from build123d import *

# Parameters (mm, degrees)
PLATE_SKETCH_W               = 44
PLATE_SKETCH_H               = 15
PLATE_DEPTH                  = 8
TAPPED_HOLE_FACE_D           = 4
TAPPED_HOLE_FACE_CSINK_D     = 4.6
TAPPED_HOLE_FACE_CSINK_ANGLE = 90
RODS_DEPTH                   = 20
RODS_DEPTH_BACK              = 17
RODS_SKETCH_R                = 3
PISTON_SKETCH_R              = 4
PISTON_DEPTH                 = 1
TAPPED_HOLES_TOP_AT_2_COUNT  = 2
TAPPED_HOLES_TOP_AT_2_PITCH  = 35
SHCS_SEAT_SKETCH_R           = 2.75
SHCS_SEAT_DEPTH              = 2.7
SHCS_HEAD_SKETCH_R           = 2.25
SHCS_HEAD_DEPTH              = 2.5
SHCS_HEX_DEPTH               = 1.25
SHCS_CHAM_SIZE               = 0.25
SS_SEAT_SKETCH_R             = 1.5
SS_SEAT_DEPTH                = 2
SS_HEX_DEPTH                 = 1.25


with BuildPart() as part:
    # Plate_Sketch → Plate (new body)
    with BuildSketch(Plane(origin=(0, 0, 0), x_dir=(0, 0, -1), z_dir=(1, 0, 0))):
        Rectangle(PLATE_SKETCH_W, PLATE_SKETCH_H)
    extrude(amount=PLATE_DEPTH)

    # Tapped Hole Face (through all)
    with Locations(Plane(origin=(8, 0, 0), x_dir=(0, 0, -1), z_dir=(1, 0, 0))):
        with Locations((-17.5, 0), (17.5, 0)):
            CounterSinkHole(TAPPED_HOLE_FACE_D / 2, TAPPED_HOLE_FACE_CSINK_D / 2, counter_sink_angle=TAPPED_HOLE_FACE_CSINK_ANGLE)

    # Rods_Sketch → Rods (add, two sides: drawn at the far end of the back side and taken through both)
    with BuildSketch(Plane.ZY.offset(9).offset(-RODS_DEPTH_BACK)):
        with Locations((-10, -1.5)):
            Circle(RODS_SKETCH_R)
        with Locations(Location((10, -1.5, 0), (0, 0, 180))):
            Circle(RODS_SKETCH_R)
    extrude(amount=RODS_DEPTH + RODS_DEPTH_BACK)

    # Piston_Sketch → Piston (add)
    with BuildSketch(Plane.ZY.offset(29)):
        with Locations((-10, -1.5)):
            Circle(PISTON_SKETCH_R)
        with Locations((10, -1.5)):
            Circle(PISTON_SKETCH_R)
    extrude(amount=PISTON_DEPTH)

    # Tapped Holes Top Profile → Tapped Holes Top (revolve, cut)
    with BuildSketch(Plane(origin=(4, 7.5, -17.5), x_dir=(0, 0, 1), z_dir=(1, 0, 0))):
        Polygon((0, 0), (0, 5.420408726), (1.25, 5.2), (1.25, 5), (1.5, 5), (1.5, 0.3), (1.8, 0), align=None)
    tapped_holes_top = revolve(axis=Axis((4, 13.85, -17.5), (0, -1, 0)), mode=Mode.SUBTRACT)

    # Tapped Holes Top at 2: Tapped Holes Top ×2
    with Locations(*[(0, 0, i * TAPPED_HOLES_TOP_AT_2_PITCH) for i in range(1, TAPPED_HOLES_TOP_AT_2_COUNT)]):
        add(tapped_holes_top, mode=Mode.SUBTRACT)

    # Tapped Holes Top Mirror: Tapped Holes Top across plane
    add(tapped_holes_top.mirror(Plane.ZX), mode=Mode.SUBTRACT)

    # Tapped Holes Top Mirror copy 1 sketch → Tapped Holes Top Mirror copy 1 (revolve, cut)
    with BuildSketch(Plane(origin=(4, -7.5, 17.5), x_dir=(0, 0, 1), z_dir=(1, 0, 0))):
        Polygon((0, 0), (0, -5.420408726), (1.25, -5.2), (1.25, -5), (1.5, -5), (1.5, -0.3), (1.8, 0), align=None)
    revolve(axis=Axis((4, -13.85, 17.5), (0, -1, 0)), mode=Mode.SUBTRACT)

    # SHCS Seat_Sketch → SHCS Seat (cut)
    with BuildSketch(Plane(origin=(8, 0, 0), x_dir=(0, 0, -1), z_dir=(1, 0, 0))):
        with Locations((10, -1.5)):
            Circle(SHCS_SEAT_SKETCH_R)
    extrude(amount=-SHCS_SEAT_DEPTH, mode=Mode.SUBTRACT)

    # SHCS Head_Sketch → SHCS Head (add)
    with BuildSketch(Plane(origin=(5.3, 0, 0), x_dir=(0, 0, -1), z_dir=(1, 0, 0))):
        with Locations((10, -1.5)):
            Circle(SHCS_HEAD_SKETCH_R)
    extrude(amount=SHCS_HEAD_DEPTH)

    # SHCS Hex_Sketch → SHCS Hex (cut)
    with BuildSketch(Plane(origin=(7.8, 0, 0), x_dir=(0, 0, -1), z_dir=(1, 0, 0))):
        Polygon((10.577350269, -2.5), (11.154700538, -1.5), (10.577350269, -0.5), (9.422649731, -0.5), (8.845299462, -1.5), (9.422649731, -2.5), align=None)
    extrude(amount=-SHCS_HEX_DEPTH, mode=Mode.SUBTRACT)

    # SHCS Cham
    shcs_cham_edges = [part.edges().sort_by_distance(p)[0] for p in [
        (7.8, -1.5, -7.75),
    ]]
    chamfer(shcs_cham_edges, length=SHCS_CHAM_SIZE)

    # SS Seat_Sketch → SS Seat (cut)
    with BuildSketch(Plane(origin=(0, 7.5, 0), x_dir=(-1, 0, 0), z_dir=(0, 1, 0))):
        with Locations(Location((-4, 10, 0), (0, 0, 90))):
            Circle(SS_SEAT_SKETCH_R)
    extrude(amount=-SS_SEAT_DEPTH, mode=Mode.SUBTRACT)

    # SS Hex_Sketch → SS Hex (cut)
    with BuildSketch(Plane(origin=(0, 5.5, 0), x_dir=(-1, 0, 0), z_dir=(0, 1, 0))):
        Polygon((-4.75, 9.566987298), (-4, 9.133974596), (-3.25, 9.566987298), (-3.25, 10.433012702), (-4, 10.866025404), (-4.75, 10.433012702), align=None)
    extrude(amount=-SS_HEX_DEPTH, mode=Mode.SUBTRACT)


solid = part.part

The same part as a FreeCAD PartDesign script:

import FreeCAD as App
import Part
import Sketcher
Q = App.Units.Quantity


def edges_at(feature, points):
    """Names of the edges that pass closest to the given points."""
    edges = feature.Shape.Edges
    near = lambda p: min(range(len(edges)), key=lambda i: edges[i].distToShape(Part.Vertex(*p))[0])
    return sorted({f"Edge{near(p) + 1}" for p in points})


def add_polygon(sketch, points):
    """Adds a closed chain of lines whose ends are joined by coincident constraints."""
    first, n = sketch.GeometryCount, len(points)
    for a, b in zip(points, points[1:] + points[:1]):
        sketch.addGeometry(Part.LineSegment(App.Vector(*a, 0), App.Vector(*b, 0)), False)
    for i in range(n):
        sketch.addConstraint(Sketcher.Constraint("Coincident", first + i, 2, first + (i + 1) % n, 1))

doc = App.newDocument("Part")
params = doc.addObject("Spreadsheet::Sheet", "Params")
for row, (alias, value) in enumerate([
    ("sketch1_width", "15 mm"),
    ("sketch1_height", "44 mm"),
    ("pad1_length", "8 mm"),
    ("sketch2_diameter", "4 mm"),
    ("hole_diameter", "4 mm"),
    ("hole_csink_diameter", "4.6 mm"),
    ("sketch3_diameter", "6 mm"),
    ("pad2_length", "20 mm"),
    ("pad2_length2", "17 mm"),
    ("sketch4_diameter", "8 mm"),
    ("pad3_length", "1 mm"),
    ("sketch5_width", "4.7 mm"),
    ("sketch5_width2", "0.2 mm"),
    ("sketch5_height", "1.8 mm"),
    ("sketch5_height2", "0.25 mm"),
    ("groove_angle", "360 deg"),
    ("linearpattern_pitch", "35 mm"),
    ("sketch6_width", "0.2 mm"),
    ("sketch6_width2", "4.7 mm"),
    ("sketch6_height", "1.8 mm"),
    ("sketch6_height2", "0.25 mm"),
    ("groove2_angle", "360 deg"),
    ("sketch7_diameter", "5.5 mm"),
    ("pocket1_length", "2.7 mm"),
    ("sketch8_diameter", "4.5 mm"),
    ("pad4_length", "2.5 mm"),
    ("pocket2_length", "1.25 mm"),
    ("chamfer_size", "0.25 mm"),
    ("sketch10_diameter", "3 mm"),
    ("pocket3_length", "2 mm"),
    ("pocket4_length", "1.25 mm"),
], start=1):
    params.set(f"A{row}", alias)
    params.set(f"B{row}", "=" + value)
    params.setAlias(f"B{row}", alias)

body = doc.addObject("PartDesign::Body", "Body")

sketch1 = body.newObject("Sketcher::SketchObject", "Sketch")
sketch1.AttachmentSupport = (doc.getObject("YZ_Plane"), [""])
sketch1.MapMode = "FlatFace"
add_polygon(sketch1, [(7.5, 22), (-7.5, 22), (-7.5, -22), (7.5, -22)])
sketch1.addConstraint(Sketcher.Constraint("Horizontal", 0))
sketch1.addConstraint(Sketcher.Constraint("Vertical", 1))
sketch1.addConstraint(Sketcher.Constraint("Horizontal", 2))
sketch1.addConstraint(Sketcher.Constraint("Vertical", 3))
sketch1.addConstraint(Sketcher.Constraint("Symmetric", 0, 2, 2, 2, -1, 1))
sketch1.addConstraint(Sketcher.Constraint("DistanceX", 0, 2, 0, 1, 15.0))
sketch1.addConstraint(Sketcher.Constraint("DistanceY", 1, 2, 1, 1, 44.0))
sketch1.setExpression("Constraints[9]", "Params.sketch1_width")
sketch1.setExpression("Constraints[10]", "Params.sketch1_height")
pad1 = body.newObject("PartDesign::Pad", "Pad")
pad1.Profile = sketch1
pad1.setExpression("Length", "Params.pad1_length")

sketch2 = body.newObject("Sketcher::SketchObject", "Sketch001")
sketch2.AttachmentSupport = (doc.getObject("YZ_Plane"), [""])
sketch2.MapMode = "FlatFace"
sketch2.AttachmentOffset = App.Placement(App.Vector(0, 0, 8), App.Rotation())
sketch2.addGeometry(Part.Circle(App.Vector(0, 17.5, 0), App.Vector(0, 0, 1), 2), False)
sketch2.addGeometry(Part.Circle(App.Vector(0, -17.5, 0), App.Vector(0, 0, 1), 2), False)
sketch2.addConstraint(Sketcher.Constraint("Equal", 0, 1))
sketch2.addConstraint(Sketcher.Constraint("Symmetric", 0, 3, 1, 3, -1, 1))
sketch2.addConstraint(Sketcher.Constraint("PointOnObject", 0, 3, -2))
sketch2.addConstraint(Sketcher.Constraint("Diameter", 0, 4.0))
sketch2.addConstraint(Sketcher.Constraint("DistanceY", 1, 3, 0, 3, 35.0))
sketch2.setExpression("Constraints[3]", "Params.sketch2_diameter")
doc.recompute()
hole = body.newObject("PartDesign::Hole", "Hole")
hole.Profile = sketch2
hole.ThreadType = "None"
hole.setExpression("Diameter", "Params.hole_diameter")
hole.DepthType = "ThroughAll"
hole.HoleCutType = "Countersink"
hole.setExpression("HoleCutDiameter", "Params.hole_csink_diameter")
hole.HoleCutCountersinkAngle = 90

sketch3 = body.newObject("Sketcher::SketchObject", "Sketch002")
sketch3.AttachmentSupport = (doc.getObject("YZ_Plane"), [""])
sketch3.MapMode = "FlatFace"
sketch3.AttachmentOffset = App.Placement(App.Vector(0, 0, -9), App.Rotation())
sketch3.addGeometry(Part.Circle(App.Vector(-1.5, -10, 0), App.Vector(0, 0, 1), 3), False)
sketch3.addGeometry(Part.Circle(App.Vector(-1.5, 10, 0), App.Vector(0, 0, 1), 3), False)
sketch3.addConstraint(Sketcher.Constraint("Equal", 0, 1))
sketch3.addConstraint(Sketcher.Constraint("Symmetric", 0, 3, 1, 3, -1))
sketch3.addConstraint(Sketcher.Constraint("Diameter", 0, 6.0))
sketch3.addConstraint(Sketcher.Constraint("DistanceY", 0, 3, -1, 1, 10.0))
sketch3.addConstraint(Sketcher.Constraint("DistanceX", 0, 3, -1, 1, 1.5))
sketch3.setExpression("Constraints[2]", "Params.sketch3_diameter")
pad2 = body.newObject("PartDesign::Pad", "Pad001")
pad2.Profile = sketch3
pad2.Type = "TwoLengths"
pad2.setExpression("Length", "Params.pad2_length")
pad2.setExpression("Length2", "Params.pad2_length2")
pad2.Reversed = True

sketch4 = body.newObject("Sketcher::SketchObject", "Sketch003")
sketch4.AttachmentSupport = (doc.getObject("YZ_Plane"), [""])
sketch4.MapMode = "FlatFace"
sketch4.AttachmentOffset = App.Placement(App.Vector(0, 0, -29), App.Rotation())
sketch4.addGeometry(Part.Circle(App.Vector(-1.5, -10, 0), App.Vector(0, 0, 1), 4), False)
sketch4.addGeometry(Part.Circle(App.Vector(-1.5, 10, 0), App.Vector(0, 0, 1), 4), False)
sketch4.addConstraint(Sketcher.Constraint("Equal", 0, 1))
sketch4.addConstraint(Sketcher.Constraint("Symmetric", 0, 3, 1, 3, -1))
sketch4.addConstraint(Sketcher.Constraint("Diameter", 0, 8.0))
sketch4.addConstraint(Sketcher.Constraint("DistanceY", 0, 3, -1, 1, 10.0))
sketch4.addConstraint(Sketcher.Constraint("DistanceX", 0, 3, -1, 1, 1.5))
sketch4.setExpression("Constraints[2]", "Params.sketch4_diameter")
pad3 = body.newObject("PartDesign::Pad", "Pad002")
pad3.Profile = sketch4
pad3.setExpression("Length", "Params.pad3_length")
pad3.Reversed = True

sketch5 = body.newObject("Sketcher::SketchObject", "Sketch004")
sketch5.AttachmentSupport = (doc.getObject("YZ_Plane"), [""])
sketch5.MapMode = "FlatFace"
sketch5.AttachmentOffset = App.Placement(App.Vector(0, 0, 4), App.Rotation())
add_polygon(sketch5, [(2.079591, -17.5), (7.5, -17.5), (7.5, -15.7), (7.2, -16), (2.5, -16), (2.5, -16.25), (2.3, -16.25)])
sketch5.addGeometry(Part.LineSegment(App.Vector(7.5, -17.5, 0), App.Vector(2.079591, -17.5, 0)), True)
sketch5.addConstraint(Sketcher.Constraint("Horizontal", 0))
sketch5.addConstraint(Sketcher.Constraint("Vertical", 1))
sketch5.addConstraint(Sketcher.Constraint("Horizontal", 3))
sketch5.addConstraint(Sketcher.Constraint("Vertical", 4))
sketch5.addConstraint(Sketcher.Constraint("Horizontal", 5))
sketch5.addConstraint(Sketcher.Constraint("Horizontal", 7))
sketch5.addConstraint(Sketcher.Constraint("Coincident", 7, 1, 0, 2))
sketch5.addConstraint(Sketcher.Constraint("Equal", 0, 7))
sketch5.addConstraint(Sketcher.Constraint("Angle", 2, Q("-135 deg")))
sketch5.addConstraint(Sketcher.Constraint("Angle", 6, Q("-100 deg")))
sketch5.addConstraint(Sketcher.Constraint("DistanceX", 3, 2, 3, 1, 4.7))
sketch5.addConstraint(Sketcher.Constraint("DistanceX", 5, 2, 5, 1, 0.2))
sketch5.addConstraint(Sketcher.Constraint("DistanceY", 1, 1, 1, 2, 1.8))
sketch5.addConstraint(Sketcher.Constraint("DistanceY", 2, 2, -1, 1, 16.0))
sketch5.addConstraint(Sketcher.Constraint("DistanceX", 3, 2, 1, 2, 5.0))
sketch5.addConstraint(Sketcher.Constraint("DistanceY", 4, 2, 4, 1, 0.25))
sketch5.addConstraint(Sketcher.Constraint("DistanceX", -1, 1, 0, 2, 7.5))
sketch5.setExpression("Constraints[17]", "Params.sketch5_width")
sketch5.setExpression("Constraints[18]", "Params.sketch5_width2")
sketch5.setExpression("Constraints[19]", "Params.sketch5_height")
sketch5.setExpression("Constraints[22]", "Params.sketch5_height2")
groove = body.newObject("PartDesign::Groove", "Groove")
groove.Profile = sketch5
groove.ReferenceAxis = (sketch5, ["Axis0"])
groove.setExpression("Angle", "Params.groove_angle")
doc.recompute()

linearpattern = body.newObject("PartDesign::LinearPattern", "LinearPattern")
linearpattern.Originals = [groove]
linearpattern.Direction = (doc.getObject("Z_Axis"), [""])
linearpattern.Mode = "offset"
linearpattern.setExpression("Offset", "Params.linearpattern_pitch")
linearpattern.Occurrences = 2
body.Tip = linearpattern
doc.recompute()

mirrored = body.newObject("PartDesign::Mirrored", "Mirrored")
mirrored.Originals = [groove]
mirrored.MirrorPlane = (doc.getObject("XZ_Plane"), [""])
body.Tip = mirrored

sketch6 = body.newObject("Sketcher::SketchObject", "Sketch005")
sketch6.AttachmentSupport = (doc.getObject("YZ_Plane"), [""])
sketch6.MapMode = "FlatFace"
sketch6.AttachmentOffset = App.Placement(App.Vector(0, 0, 4), App.Rotation())
add_polygon(sketch6, [(-7.5, 17.5), (-2.079591, 17.5), (-2.3, 18.75), (-2.5, 18.75), (-2.5, 19), (-7.2, 19), (-7.5, 19.3)])
sketch6.addGeometry(Part.LineSegment(App.Vector(-2.079591, 17.5, 0), App.Vector(-7.5, 17.5, 0)), True)
sketch6.addConstraint(Sketcher.Constraint("Horizontal", 0))
sketch6.addConstraint(Sketcher.Constraint("Horizontal", 2))
sketch6.addConstraint(Sketcher.Constraint("Vertical", 3))
sketch6.addConstraint(Sketcher.Constraint("Horizontal", 4))
sketch6.addConstraint(Sketcher.Constraint("Vertical", 6))
sketch6.addConstraint(Sketcher.Constraint("Horizontal", 7))
sketch6.addConstraint(Sketcher.Constraint("Coincident", 7, 1, 0, 2))
sketch6.addConstraint(Sketcher.Constraint("Vertical", 5, 2, 7, 2))
sketch6.addConstraint(Sketcher.Constraint("Angle", 1, Q("100 deg")))
sketch6.addConstraint(Sketcher.Constraint("Angle", 5, Q("135 deg")))
sketch6.addConstraint(Sketcher.Constraint("DistanceX", 2, 2, 2, 1, 0.2))
sketch6.addConstraint(Sketcher.Constraint("DistanceX", 4, 2, 4, 1, 4.7))
sketch6.addConstraint(Sketcher.Constraint("DistanceY", 6, 2, 6, 1, 1.8))
sketch6.addConstraint(Sketcher.Constraint("DistanceY", -1, 1, 3, 2, 19.0))
sketch6.addConstraint(Sketcher.Constraint("DistanceX", 5, 2, 3, 2, 5.0))
sketch6.addConstraint(Sketcher.Constraint("DistanceY", 3, 1, 3, 2, 0.25))
sketch6.addConstraint(Sketcher.Constraint("DistanceX", 1, 2, -1, 1, 2.3))
sketch6.setExpression("Constraints[17]", "Params.sketch6_width")
sketch6.setExpression("Constraints[18]", "Params.sketch6_width2")
sketch6.setExpression("Constraints[19]", "Params.sketch6_height")
sketch6.setExpression("Constraints[22]", "Params.sketch6_height2")
groove2 = body.newObject("PartDesign::Groove", "Groove001")
groove2.Profile = sketch6
groove2.ReferenceAxis = (sketch6, ["Axis0"])
groove2.setExpression("Angle", "Params.groove2_angle")

sketch7 = body.newObject("Sketcher::SketchObject", "Sketch006")
sketch7.AttachmentSupport = (doc.getObject("YZ_Plane"), [""])
sketch7.MapMode = "FlatFace"
sketch7.AttachmentOffset = App.Placement(App.Vector(0, 0, 8), App.Rotation())
sketch7.addGeometry(Part.Circle(App.Vector(-1.5, -10, 0), App.Vector(0, 0, 1), 2.75), False)
sketch7.addConstraint(Sketcher.Constraint("Diameter", 0, 5.5))
sketch7.addConstraint(Sketcher.Constraint("DistanceY", 0, 3, -1, 1, 10.0))
sketch7.addConstraint(Sketcher.Constraint("DistanceX", 0, 3, -1, 1, 1.5))
sketch7.setExpression("Constraints[0]", "Params.sketch7_diameter")
pocket1 = body.newObject("PartDesign::Pocket", "Pocket")
pocket1.Profile = sketch7
pocket1.setExpression("Length", "Params.pocket1_length")

sketch8 = body.newObject("Sketcher::SketchObject", "Sketch007")
sketch8.AttachmentSupport = (doc.getObject("YZ_Plane"), [""])
sketch8.MapMode = "FlatFace"
sketch8.AttachmentOffset = App.Placement(App.Vector(0, 0, 5.3), App.Rotation())
sketch8.addGeometry(Part.Circle(App.Vector(-1.5, -10, 0), App.Vector(0, 0, 1), 2.25), False)
sketch8.addConstraint(Sketcher.Constraint("Diameter", 0, 4.5))
sketch8.addConstraint(Sketcher.Constraint("DistanceY", 0, 3, -1, 1, 10.0))
sketch8.addConstraint(Sketcher.Constraint("DistanceX", 0, 3, -1, 1, 1.5))
sketch8.setExpression("Constraints[0]", "Params.sketch8_diameter")
pad4 = body.newObject("PartDesign::Pad", "Pad003")
pad4.Profile = sketch8
pad4.setExpression("Length", "Params.pad4_length")

sketch9 = body.newObject("Sketcher::SketchObject", "Sketch008")
sketch9.AttachmentSupport = (doc.getObject("YZ_Plane"), [""])
sketch9.MapMode = "FlatFace"
sketch9.AttachmentOffset = App.Placement(App.Vector(0, 0, 7.8), App.Rotation())
add_polygon(sketch9, [(-2.5, -10.57735), (-1.5, -11.154701), (-0.5, -10.57735), (-0.5, -9.42265), (-1.5, -8.845299), (-2.5, -9.42265)])
sketch9.addConstraint(Sketcher.Constraint("Vertical", 2))
sketch9.addConstraint(Sketcher.Constraint("Vertical", 5))
sketch9.addConstraint(Sketcher.Constraint("Parallel", 0, 3))
sketch9.addConstraint(Sketcher.Constraint("Parallel", 1, 4))
sketch9.addConstraint(Sketcher.Constraint("Horizontal", 2, 2, 4, 2))
sketch9.addConstraint(Sketcher.Constraint("Horizontal", 1, 2, 5, 2))
sketch9.addConstraint(Sketcher.Constraint("Vertical", 0, 2, 3, 2))
sketch9.addConstraint(Sketcher.Constraint("Angle", 0, Q("-30 deg")))
sketch9.addConstraint(Sketcher.Constraint("DistanceX", 0, 2, 1, 2, 1.0))
sketch9.addConstraint(Sketcher.Constraint("DistanceX", 0, 2, -1, 1, 1.5))
sketch9.addConstraint(Sketcher.Constraint("DistanceY", 2, 1, 2, 2, 1.154701))
sketch9.addConstraint(Sketcher.Constraint("DistanceY", 0, 2, -1, 1, 11.154701))
pocket2 = body.newObject("PartDesign::Pocket", "Pocket001")
pocket2.Profile = sketch9
pocket2.setExpression("Length", "Params.pocket2_length")
doc.recompute()

chamfer = body.newObject("PartDesign::Chamfer", "Chamfer")
chamfer.Base = (pocket2, edges_at(pocket2, [(7.8, -1.5, -7.75)]))
chamfer.setExpression("Size", "Params.chamfer_size")

sketch10 = body.newObject("Sketcher::SketchObject", "Sketch009")
sketch10.AttachmentSupport = (doc.getObject("XZ_Plane"), [""])
sketch10.MapMode = "FlatFace"
sketch10.AttachmentOffset = App.Placement(App.Vector(0, 0, -7.5), App.Rotation())
sketch10.addGeometry(Part.Circle(App.Vector(4, 10, 0), App.Vector(0, 0, 1), 1.5), False)
sketch10.addConstraint(Sketcher.Constraint("Diameter", 0, 3.0))
sketch10.addConstraint(Sketcher.Constraint("DistanceX", -1, 1, 0, 3, 4.0))
sketch10.addConstraint(Sketcher.Constraint("DistanceY", -1, 1, 0, 3, 10.0))
sketch10.setExpression("Constraints[0]", "Params.sketch10_diameter")
pocket3 = body.newObject("PartDesign::Pocket", "Pocket002")
pocket3.Profile = sketch10
pocket3.setExpression("Length", "Params.pocket3_length")
pocket3.Reversed = True

sketch11 = body.newObject("Sketcher::SketchObject", "Sketch010")
sketch11.AttachmentSupport = (doc.getObject("XZ_Plane"), [""])
sketch11.MapMode = "FlatFace"
sketch11.AttachmentOffset = App.Placement(App.Vector(0, 0, -5.5), App.Rotation())
add_polygon(sketch11, [(4.75, 9.566987), (4, 9.133975), (3.25, 9.566987), (3.25, 10.433013), (4, 10.866025), (4.75, 10.433013)])
sketch11.addConstraint(Sketcher.Constraint("Vertical", 2))
sketch11.addConstraint(Sketcher.Constraint("Vertical", 5))
sketch11.addConstraint(Sketcher.Constraint("Parallel", 0, 3))
sketch11.addConstraint(Sketcher.Constraint("Parallel", 1, 4))
sketch11.addConstraint(Sketcher.Constraint("Horizontal", 2, 2, 4, 2))
sketch11.addConstraint(Sketcher.Constraint("Horizontal", 1, 2, 5, 2))
sketch11.addConstraint(Sketcher.Constraint("Vertical", 0, 2, 3, 2))
sketch11.addConstraint(Sketcher.Constraint("Angle", 0, Q("-150 deg")))
sketch11.addConstraint(Sketcher.Constraint("DistanceX", -1, 1, 0, 2, 4.0))
sketch11.addConstraint(Sketcher.Constraint("DistanceX", 2, 2, 4, 2, 1.5))
sketch11.addConstraint(Sketcher.Constraint("DistanceY", 2, 1, 2, 2, 0.866025))
sketch11.addConstraint(Sketcher.Constraint("DistanceY", -1, 1, 0, 2, 9.133975))
pocket4 = body.newObject("PartDesign::Pocket", "Pocket003")
pocket4.Profile = sketch11
pocket4.setExpression("Length", "Params.pocket4_length")
pocket4.Reversed = True

doc.recompute()
